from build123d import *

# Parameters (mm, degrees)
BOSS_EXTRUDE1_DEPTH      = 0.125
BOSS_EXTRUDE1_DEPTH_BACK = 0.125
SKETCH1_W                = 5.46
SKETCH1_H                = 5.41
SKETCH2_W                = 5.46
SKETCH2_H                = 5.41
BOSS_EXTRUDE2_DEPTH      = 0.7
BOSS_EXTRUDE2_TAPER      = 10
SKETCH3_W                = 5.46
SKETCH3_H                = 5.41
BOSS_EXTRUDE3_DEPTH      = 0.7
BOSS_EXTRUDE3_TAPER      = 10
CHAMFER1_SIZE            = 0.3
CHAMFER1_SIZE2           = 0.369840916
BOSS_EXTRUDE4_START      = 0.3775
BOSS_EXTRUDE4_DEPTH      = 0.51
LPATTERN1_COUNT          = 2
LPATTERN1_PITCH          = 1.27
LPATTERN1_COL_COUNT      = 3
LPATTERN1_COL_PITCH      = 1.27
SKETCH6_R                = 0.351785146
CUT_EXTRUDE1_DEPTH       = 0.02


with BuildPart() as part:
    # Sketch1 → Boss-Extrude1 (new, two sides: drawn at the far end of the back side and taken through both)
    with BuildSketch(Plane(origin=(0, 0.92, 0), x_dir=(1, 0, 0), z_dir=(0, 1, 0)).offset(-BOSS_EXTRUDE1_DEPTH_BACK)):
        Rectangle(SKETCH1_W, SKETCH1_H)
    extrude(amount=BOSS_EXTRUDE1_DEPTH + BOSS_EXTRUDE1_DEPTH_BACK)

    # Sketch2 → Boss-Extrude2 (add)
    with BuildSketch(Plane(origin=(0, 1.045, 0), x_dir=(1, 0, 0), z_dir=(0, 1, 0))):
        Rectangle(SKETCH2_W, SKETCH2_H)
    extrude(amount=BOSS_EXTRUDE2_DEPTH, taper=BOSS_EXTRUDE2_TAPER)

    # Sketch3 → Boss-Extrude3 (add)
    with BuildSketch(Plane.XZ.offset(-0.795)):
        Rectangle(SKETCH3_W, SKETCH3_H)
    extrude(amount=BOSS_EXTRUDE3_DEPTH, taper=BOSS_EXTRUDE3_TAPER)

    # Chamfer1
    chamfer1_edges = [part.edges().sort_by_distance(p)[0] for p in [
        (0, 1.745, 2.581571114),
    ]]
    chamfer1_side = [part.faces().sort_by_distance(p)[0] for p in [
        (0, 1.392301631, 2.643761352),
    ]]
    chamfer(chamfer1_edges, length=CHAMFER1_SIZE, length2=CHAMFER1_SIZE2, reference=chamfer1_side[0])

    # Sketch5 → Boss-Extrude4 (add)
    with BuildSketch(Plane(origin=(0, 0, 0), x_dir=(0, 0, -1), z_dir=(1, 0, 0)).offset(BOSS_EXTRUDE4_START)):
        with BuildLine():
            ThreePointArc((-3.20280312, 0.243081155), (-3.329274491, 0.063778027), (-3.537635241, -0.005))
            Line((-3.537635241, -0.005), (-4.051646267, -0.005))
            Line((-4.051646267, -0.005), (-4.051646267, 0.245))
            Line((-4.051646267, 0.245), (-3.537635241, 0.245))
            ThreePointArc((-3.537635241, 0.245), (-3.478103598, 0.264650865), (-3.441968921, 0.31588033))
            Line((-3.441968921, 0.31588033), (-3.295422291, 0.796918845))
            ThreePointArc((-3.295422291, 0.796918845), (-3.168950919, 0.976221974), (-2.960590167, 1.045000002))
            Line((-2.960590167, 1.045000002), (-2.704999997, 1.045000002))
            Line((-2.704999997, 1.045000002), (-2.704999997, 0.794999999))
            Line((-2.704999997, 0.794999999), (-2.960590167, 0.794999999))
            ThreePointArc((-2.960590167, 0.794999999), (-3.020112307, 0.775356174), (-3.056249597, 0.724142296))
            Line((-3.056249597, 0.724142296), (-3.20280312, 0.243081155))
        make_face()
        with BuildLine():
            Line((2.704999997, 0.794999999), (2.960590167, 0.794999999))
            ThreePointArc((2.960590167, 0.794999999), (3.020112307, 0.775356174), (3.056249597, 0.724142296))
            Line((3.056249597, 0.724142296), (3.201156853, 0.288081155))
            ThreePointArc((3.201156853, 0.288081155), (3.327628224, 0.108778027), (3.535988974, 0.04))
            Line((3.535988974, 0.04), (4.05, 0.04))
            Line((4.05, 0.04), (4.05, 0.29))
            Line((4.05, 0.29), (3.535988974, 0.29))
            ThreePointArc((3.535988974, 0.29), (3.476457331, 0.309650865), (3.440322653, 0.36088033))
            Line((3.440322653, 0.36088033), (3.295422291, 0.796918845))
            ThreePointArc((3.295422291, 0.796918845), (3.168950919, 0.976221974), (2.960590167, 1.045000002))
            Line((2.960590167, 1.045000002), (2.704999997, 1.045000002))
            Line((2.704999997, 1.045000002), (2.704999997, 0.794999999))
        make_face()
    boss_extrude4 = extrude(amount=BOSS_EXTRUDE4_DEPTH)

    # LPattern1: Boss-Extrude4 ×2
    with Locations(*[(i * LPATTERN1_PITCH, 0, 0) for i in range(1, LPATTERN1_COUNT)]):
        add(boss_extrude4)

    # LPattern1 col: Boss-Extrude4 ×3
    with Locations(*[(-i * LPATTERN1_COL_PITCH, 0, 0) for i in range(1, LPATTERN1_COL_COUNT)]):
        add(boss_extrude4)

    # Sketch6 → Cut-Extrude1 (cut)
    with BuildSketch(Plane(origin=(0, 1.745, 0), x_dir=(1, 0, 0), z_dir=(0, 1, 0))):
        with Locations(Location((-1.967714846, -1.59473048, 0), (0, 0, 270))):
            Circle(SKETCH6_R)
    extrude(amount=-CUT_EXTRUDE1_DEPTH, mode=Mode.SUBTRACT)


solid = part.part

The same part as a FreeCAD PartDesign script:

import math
import FreeCAD as App
import Part
import Sketcher
from FreeCAD import Vector
Q = App.Units.Quantity


def edges_at(feature, points):
    """Names of the edges that pass closest to the given points."""
    edges = feature.Shape.Edges
    near = lambda p: min(range(len(edges)), key=lambda i: edges[i].distToShape(Part.Vertex(*p))[0])
    return sorted({f"Edge{near(p) + 1}" for p in points})


def add_polygon(sketch, points):
    """Adds a closed chain of lines whose ends are joined by coincident constraints."""
    first, n = sketch.GeometryCount, len(points)
    for a, b in zip(points, points[1:] + points[:1]):
        sketch.addGeometry(Part.LineSegment(App.Vector(*a, 0), App.Vector(*b, 0)), False)
    for i in range(n):
        sketch.addConstraint(Sketcher.Constraint("Coincident", first + i, 2, first + (i + 1) % n, 1))

doc = App.newDocument("Part")
params = doc.addObject("Spreadsheet::Sheet", "Params")
for row, (alias, value) in enumerate([
    ("sketch1_width", "5.46 mm"),
    ("sketch1_height", "5.41 mm"),
    ("pad1_length", "0.125 mm"),
    ("pad1_length2", "0.125 mm"),
    ("sketch2_width", "5.46 mm"),
    ("sketch2_height", "5.41 mm"),
    ("pad2_length", "0.7 mm"),
    ("pad2_taper", "-10 deg"),
    ("sketch3_width", "5.46 mm"),
    ("sketch3_height", "5.41 mm"),
    ("pad3_length", "0.7 mm"),
    ("pad3_taper", "-10 deg"),
    ("chamfer_size", "0.3 mm"),
    ("chamfer_size2", "0.369841 mm"),
    ("sketch4_radius", "0.1 mm"),
    ("sketch4_radius2", "0.1 mm"),
    ("sketch4_radius3", "0.1 mm"),
    ("sketch4_radius4", "0.1 mm"),
    ("sketch4_radius5", "0.35 mm"),
    ("pad4_length", "0.51 mm"),
    ("linearpattern_pitch", "1.27 mm"),
    ("linearpattern2_pitch", "1.27 mm"),
    ("pocket1_length", "0.02 mm"),
], start=1):
    params.set(f"A{row}", alias)
    params.set(f"B{row}", "=" + value)
    params.setAlias(f"B{row}", alias)

body = doc.addObject("PartDesign::Body", "Body")

# Sketch on XZ plane
sketch1 = doc.addObject("Sketcher::SketchObject", "Sketch")
body.addObject(sketch1)
sketch1.AttachmentSupport = (doc.XZ_Plane, [""])
sketch1.MapMode = "FlatFace"
sketch1.AttachmentOffset = App.Placement(Vector(0, 0, -0.92), App.Rotation())
add_polygon(sketch1, [(-3, -3), (-3, 3), (3, 3), (3, -3)])  # lines 0-3
sketch1.addConstraint([
    Sketcher.Constraint("Vertical", 0),
    Sketcher.Constraint("Horizontal", 1),
    Sketcher.Constraint("Vertical", 2),
    Sketcher.Constraint("Horizontal", 3),
    Sketcher.Constraint("Symmetric", 0, 2, 2, 2, -1, 1),
    Sketcher.Constraint("DistanceX", 1, 1, 1, 2, Q("5.46 mm")),
    Sketcher.Constraint("DistanceY", 0, 1, 0, 2, Q("5.41 mm")),
])
sketch1.setExpression("Constraints[9]", "Params.sketch1_width")
sketch1.setExpression("Constraints[10]", "Params.sketch1_height")
pad1 = doc.addObject("PartDesign::Pad", "Pad")
body.addObject(pad1)
pad1.Profile = sketch1
pad1.Type = "TwoLengths"
pad1.setExpression("Length", "Params.pad1_length")
pad1.setExpression("Length2", "Params.pad1_length2")
pad1.Reversed = True

# Sketch on XZ plane
sketch2 = doc.addObject("Sketcher::SketchObject", "Sketch001")
body.addObject(sketch2)
sketch2.AttachmentSupport = (doc.XZ_Plane, [""])
sketch2.MapMode = "FlatFace"
sketch2.AttachmentOffset = App.Placement(Vector(0, 0, -1.045), App.Rotation())
add_polygon(sketch2, [(-3, -3), (-3, 3), (3, 3), (3, -3)])  # lines 0-3
sketch2.addConstraint([
    Sketcher.Constraint("Vertical", 0),
    Sketcher.Constraint("Horizontal", 1),
    Sketcher.Constraint("Vertical", 2),
    Sketcher.Constraint("Horizontal", 3),
    Sketcher.Constraint("Symmetric", 0, 2, 2, 2, -1, 1),
    Sketcher.Constraint("DistanceX", 1, 1, 1, 2, Q("5.46 mm")),
    Sketcher.Constraint("DistanceY", 0, 1, 0, 2, Q("5.41 mm")),
])
sketch2.setExpression("Constraints[9]", "Params.sketch2_width")
sketch2.setExpression("Constraints[10]", "Params.sketch2_height")
pad2 = doc.addObject("PartDesign::Pad", "Pad001")
body.addObject(pad2)
pad2.Profile = sketch2
pad2.setExpression("Length", "Params.pad2_length")
pad2.Reversed = True
pad2.setExpression("TaperAngle", "Params.pad2_taper")

# Sketch on XZ plane
sketch3 = doc.addObject("Sketcher::SketchObject", "Sketch002")
body.addObject(sketch3)
sketch3.AttachmentSupport = (doc.XZ_Plane, [""])
sketch3.MapMode = "FlatFace"
sketch3.AttachmentOffset = App.Placement(Vector(0, 0, -0.795), App.Rotation())
add_polygon(sketch3, [(-3, 3), (-3, -3), (3, -3), (3, 3)])  # lines 0-3
sketch3.addConstraint([
    Sketcher.Constraint("Vertical", 0),
    Sketcher.Constraint("Horizontal", 1),
    Sketcher.Constraint("Vertical", 2),
    Sketcher.Constraint("Horizontal", 3),
    Sketcher.Constraint("Symmetric", 0, 2, 2, 2, -1, 1),
    Sketcher.Constraint("DistanceX", 1, 1, 1, 2, Q("5.46 mm")),
    Sketcher.Constraint("DistanceY", 0, 2, 0, 1, Q("5.41 mm")),
])
sketch3.setExpression("Constraints[9]", "Params.sketch3_width")
sketch3.setExpression("Constraints[10]", "Params.sketch3_height")
pad3 = doc.addObject("PartDesign::Pad", "Pad002")
body.addObject(pad3)
pad3.Profile = sketch3
pad3.setExpression("Length", "Params.pad3_length")
pad3.setExpression("TaperAngle", "Params.pad3_taper")
doc.recompute()

chamfer = doc.addObject("PartDesign::Chamfer", "Chamfer")
body.addObject(chamfer)
chamfer.Base = (pad3, edges_at(pad3, [(0, 1.745, 2.582)]))
chamfer.ChamferType = "Two distances"
chamfer.setExpression("Size", "Params.chamfer_size")
chamfer.setExpression("Size2", "Params.chamfer_size2")

# Sketch on YZ plane
sketch4 = doc.addObject("Sketcher::SketchObject", "Sketch003")
body.addObject(sketch4)
sketch4.AttachmentSupport = (doc.YZ_Plane, [""])
sketch4.MapMode = "FlatFace"
sketch4.AttachmentOffset = App.Placement(Vector(0, 0, 0.3775), App.Rotation())
sketch4.addGeometry([
    Part.ArcOfCircle(Part.Circle(Vector(0.345, 3.537635, 0), Vector(0, 0, 1), 0.35), math.radians(180), math.radians(253.070386)),  # 0
    Part.LineSegment(Vector(0.243081, 3.202803, 0), Vector(0.724142, 3.05625, 0)),  # 1
    Part.ArcOfCircle(Part.Circle(Vector(0.695, 2.96059, 0), Vector(0, 0, 1), 0.1), math.radians(0), math.radians(73.056834)),  # 2
    Part.LineSegment(Vector(0.795, 2.96059, 0), Vector(0.795, 2.705, 0)),  # 3
    Part.LineSegment(Vector(0.795, 2.705, 0), Vector(1.045, 2.705, 0)),  # 4
    Part.LineSegment(Vector(1.045, 2.705, 0), Vector(1.045, 2.96059, 0)),  # 5
    Part.ArcOfCircle(Part.Circle(Vector(0.695, 2.96059, 0), Vector(0, 0, 1), 0.35), math.radians(0), math.radians(73.070386)),  # 6
    Part.LineSegment(Vector(0.796919, 3.295422, 0), Vector(0.31588, 3.441969, 0)),  # 7
    Part.ArcOfCircle(Part.Circle(Vector(0.345, 3.537635, 0), Vector(0, 0, 1), 0.1), math.radians(180), math.radians(253.070386)),  # 8
    Part.LineSegment(Vector(0.245, 3.537635, 0), Vector(0.245, 4.051646, 0)),  # 9
    Part.LineSegment(Vector(0.245, 4.051646, 0), Vector(-0.005, 4.051646, 0)),  # 10
    Part.LineSegment(Vector(-0.005, 4.051646, 0), Vector(-0.005, 3.537635, 0)),  # 11
    Part.LineSegment(Vector(0.795, -2.705, 0), Vector(0.795, -2.96059, 0)),  # 12
    Part.ArcOfCircle(Part.Circle(Vector(0.695, -2.96059, 0), Vector(0, 0, 1), 0.1), math.radians(-73.056834), math.radians(0)),  # 13
    Part.LineSegment(Vector(0.724142, -3.05625, 0), Vector(0.288081, -3.201157, 0)),  # 14
    Part.ArcOfCircle(Part.Circle(Vector(0.39, -3.535989, 0), Vector(0, 0, 1), 0.35), math.radians(106.929614), math.radians(180)),  # 15
    Part.LineSegment(Vector(0.04, -3.535989, 0), Vector(0.04, -4.05, 0)),  # 16
    Part.LineSegment(Vector(0.04, -4.05, 0), Vector(0.29, -4.05, 0)),  # 17
    Part.LineSegment(Vector(0.29, -4.05, 0), Vector(0.29, -3.535989, 0)),  # 18
    Part.ArcOfCircle(Part.Circle(Vector(0.39, -3.535989, 0), Vector(0, 0, 1), 0.1), math.radians(106.929615), math.radians(180)),  # 19
    Part.LineSegment(Vector(0.36088, -3.440323, 0), Vector(0.796919, -3.295422, 0)),  # 20
    Part.ArcOfCircle(Part.Circle(Vector(0.695, -2.96059, 0), Vector(0, 0, 1), 0.35), math.radians(-73.070386), math.radians(0)),  # 21
    Part.LineSegment(Vector(1.045, -2.96059, 0), Vector(1.045, -2.705, 0)),  # 22
    Part.LineSegment(Vector(1.045, -2.705, 0), Vector(0.795, -2.705, 0)),  # 23
], False)
sketch4.addConstraint([
    Sketcher.Constraint("Coincident", 0, 2, 1, 1),
    Sketcher.Constraint("Coincident", 1, 2, 2, 2),
    Sketcher.Constraint("Coincident", 2, 1, 3, 1),
    Sketcher.Constraint("Coincident", 3, 2, 4, 1),
    Sketcher.Constraint("Coincident", 4, 2, 5, 1),
    Sketcher.Constraint("Coincident", 5, 2, 6, 1),
    Sketcher.Constraint("Coincident", 6, 2, 7, 1),
    Sketcher.Constraint("Coincident", 7, 2, 8, 2),
    Sketcher.Constraint("Coincident", 8, 1, 9, 1),
    Sketcher.Constraint("Coincident", 9, 2, 10, 1),
    Sketcher.Constraint("Coincident", 10, 2, 11, 1),
    Sketcher.Constraint("Coincident", 11, 2, 0, 1),
    Sketcher.Constraint("Coincident", 12, 2, 13, 2),
    Sketcher.Constraint("Coincident", 13, 1, 14, 1),
    Sketcher.Constraint("Coincident", 14, 2, 15, 1),
    Sketcher.Constraint("Coincident", 15, 2, 16, 1),
    Sketcher.Constraint("Coincident", 16, 2, 17, 1),
    Sketcher.Constraint("Coincident", 17, 2, 18, 1),
    Sketcher.Constraint("Coincident", 18, 2, 19, 2),
    Sketcher.Constraint("Coincident", 19, 1, 20, 1),
    Sketcher.Constraint("Coincident", 20, 2, 21, 1),
    Sketcher.Constraint("Coincident", 21, 2, 22, 1),
    Sketcher.Constraint("Coincident", 22, 2, 23, 1),
    Sketcher.Constraint("Coincident", 23, 2, 12, 1),
    Sketcher.Constraint("Vertical", 3),
    Sketcher.Constraint("Horizontal", 4),
    Sketcher.Constraint("Vertical", 5),
    Sketcher.Constraint("Vertical", 9),
    Sketcher.Constraint("Horizontal", 10),
    Sketcher.Constraint("Vertical", 11),
    Sketcher.Constraint("Vertical", 12),
    Sketcher.Constraint("Vertical", 16),
    Sketcher.Constraint("Horizontal", 17),
    Sketcher.Constraint("Vertical", 18),
    Sketcher.Constraint("Vertical", 22),
    Sketcher.Constraint("Horizontal", 23),
    Sketcher.Constraint("Coincident", 6, 3, 2, 3),
    Sketcher.Constraint("Coincident", 8, 3, 0, 3),
    Sketcher.Constraint("Coincident", 19, 3, 15, 3),
    Sketcher.Constraint("Coincident", 21, 3, 13, 3),
    Sketcher.Constraint("Radius", 2, Q("0.1 mm")),
    Sketcher.Constraint("Radius", 8, Q("0.1 mm")),
    Sketcher.Constraint("Radius", 13, Q("0.1 mm")),
    Sketcher.Constraint("Radius", 19, Q("0.1 mm")),
    Sketcher.Constraint("Radius", 0, Q("0.35 mm")),
    Sketcher.Constraint("Radius", 6, Q("0.35 mm")),
    Sketcher.Constraint("Radius", 15, Q("0.35 mm")),
    Sketcher.Constraint("Radius", 21, Q("0.35 mm")),
    Sketcher.Constraint("DistanceX", -1, 1, 15, 3, Q("0.39 mm")),
    Sketcher.Constraint("DistanceY", 16, 2, -1, 1, Q("4.05 mm")),
    Sketcher.Constraint("DistanceX", 0, 3, 2, 3, Q("0.35 mm")),
    Sketcher.Constraint("DistanceX", 0, 3, 13, 3, Q("0.35 mm")),
    Sketcher.Constraint("DistanceX", -1, 1, 0, 3, Q("0.345 mm")),
    Sketcher.Constraint("DistanceY", -1, 1, 3, 2, Q("2.705 mm")),
    Sketcher.Constraint("DistanceY", 22, 2, -1, 1, Q("2.705 mm")),
    Sketcher.Constraint("DistanceY", 3, 2, 3, 1, Q("0.25559 mm")),
    Sketcher.Constraint("DistanceY", 5, 1, 5, 2, Q("0.25559 mm")),
    Sketcher.Constraint("DistanceY", 9, 1, 9, 2, Q("0.514011 mm")),
    Sketcher.Constraint("DistanceY", 11, 2, 11, 1, Q("0.514011 mm")),
    Sketcher.Constraint("DistanceY", 12, 2, 12, 1, Q("0.25559 mm")),
    Sketcher.Constraint("DistanceY", 16, 2, 16, 1, Q("0.514011 mm")),
    Sketcher.Constraint("DistanceY", 18, 1, 18, 2, Q("0.514011 mm")),
    Sketcher.Constraint("DistanceY", 22, 1, 22, 2, Q("0.25559 mm")),
    Sketcher.Constraint("DistanceY", 15, 3, 13, 3, Q("0.575399 mm")),
    Sketcher.Constraint("DistanceX", 0, 2, 7, 2, Q("0.072799 mm")),
    Sketcher.Constraint("DistanceY", 19, 3, 12, 2, Q("0.575399 mm")),
    Sketcher.Constraint("DistanceX", 14, 2, 19, 1, Q("0.072799 mm")),
    Sketcher.Constraint("DistanceY", 19, 1, 20, 2, Q("0.1449 mm")),
    Sketcher.Constraint("Distance", 1, Q("0.502889 mm")),
    Sketcher.Constraint("DistanceY", -1, 1, 2, 3, Q("2.96059 mm")),
    Sketcher.Constraint("DistanceX", -1, 1, 0, 2, Q("0.243081 mm")),
    Sketcher.Constraint("DistanceY", -1, 1, 1, 2, Q("3.05625 mm")),
    Sketcher.Constraint("DistanceX", -1, 1, 6, 2, Q("0.796919 mm")),
    Sketcher.Constraint("DistanceY", 13, 1, -1, 1, Q("3.05625 mm")),
    Sketcher.Constraint("DistanceX", -1, 1, 14, 2, Q("0.288081 mm")),
    Sketcher.Constraint("DistanceY", 8, 3, 9, 2, Q("0.514011 mm")),
])
sketch4.setExpression("Constraints[40]", "Params.sketch4_radius")
sketch4.setExpression("Constraints[41]", "Params.sketch4_radius2")
sketch4.setExpression("Constraints[42]", "Params.sketch4_radius3")
sketch4.setExpression("Constraints[43]", "Params.sketch4_radius4")
sketch4.setExpression("Constraints[44]", "Params.sketch4_radius5")
pad4 = doc.addObject("PartDesign::Pad", "Pad003")
body.addObject(pad4)
pad4.Profile = sketch4
pad4.setExpression("Length", "Params.pad4_length")
doc.recompute()

linearpattern = doc.addObject("PartDesign::LinearPattern", "LinearPattern")
body.addObject(linearpattern)
linearpattern.Originals = [pad4]
linearpattern.Direction = (doc.X_Axis, [""])
linearpattern.Mode = "offset"
linearpattern.setExpression("Offset", "Params.linearpattern_pitch")
linearpattern.Occurrences = 2
body.Tip = linearpattern
doc.recompute()

linearpattern2 = doc.addObject("PartDesign::LinearPattern", "LinearPattern001")
body.addObject(linearpattern2)
linearpattern2.Originals = [pad4]
linearpattern2.Direction = (doc.X_Axis, [""])
linearpattern2.Mode = "offset"
linearpattern2.setExpression("Offset", "Params.linearpattern2_pitch")
linearpattern2.Occurrences = 3
linearpattern2.Reversed = True
body.Tip = linearpattern2

# Sketch on XZ plane
sketch5 = doc.addObject("Sketcher::SketchObject", "Sketch004")
body.addObject(sketch5)
sketch5.AttachmentSupport = (doc.XZ_Plane, [""])
sketch5.MapMode = "FlatFace"
sketch5.AttachmentOffset = App.Placement(Vector(0, 0, -1.745), App.Rotation())
sketch5.addGeometry(Part.Circle(Vector(-1.97, 1.59, 0), Vector(0, 0, 1), 0.35), False)
sketch5.addConstraint([
    Sketcher.Constraint("Diameter", 0, Q("0.70357 mm")),
    Sketcher.Constraint("DistanceY", -1, 1, 0, 3, Q("1.59473 mm")),
    Sketcher.Constraint("DistanceX", 0, 3, -1, 1, Q("1.967715 mm")),
])
pocket1 = doc.addObject("PartDesign::Pocket", "Pocket")
body.addObject(pocket1)
pocket1.Profile = sketch5
pocket1.setExpression("Length", "Params.pocket1_length")
pocket1.Reversed = True

doc.recompute()
